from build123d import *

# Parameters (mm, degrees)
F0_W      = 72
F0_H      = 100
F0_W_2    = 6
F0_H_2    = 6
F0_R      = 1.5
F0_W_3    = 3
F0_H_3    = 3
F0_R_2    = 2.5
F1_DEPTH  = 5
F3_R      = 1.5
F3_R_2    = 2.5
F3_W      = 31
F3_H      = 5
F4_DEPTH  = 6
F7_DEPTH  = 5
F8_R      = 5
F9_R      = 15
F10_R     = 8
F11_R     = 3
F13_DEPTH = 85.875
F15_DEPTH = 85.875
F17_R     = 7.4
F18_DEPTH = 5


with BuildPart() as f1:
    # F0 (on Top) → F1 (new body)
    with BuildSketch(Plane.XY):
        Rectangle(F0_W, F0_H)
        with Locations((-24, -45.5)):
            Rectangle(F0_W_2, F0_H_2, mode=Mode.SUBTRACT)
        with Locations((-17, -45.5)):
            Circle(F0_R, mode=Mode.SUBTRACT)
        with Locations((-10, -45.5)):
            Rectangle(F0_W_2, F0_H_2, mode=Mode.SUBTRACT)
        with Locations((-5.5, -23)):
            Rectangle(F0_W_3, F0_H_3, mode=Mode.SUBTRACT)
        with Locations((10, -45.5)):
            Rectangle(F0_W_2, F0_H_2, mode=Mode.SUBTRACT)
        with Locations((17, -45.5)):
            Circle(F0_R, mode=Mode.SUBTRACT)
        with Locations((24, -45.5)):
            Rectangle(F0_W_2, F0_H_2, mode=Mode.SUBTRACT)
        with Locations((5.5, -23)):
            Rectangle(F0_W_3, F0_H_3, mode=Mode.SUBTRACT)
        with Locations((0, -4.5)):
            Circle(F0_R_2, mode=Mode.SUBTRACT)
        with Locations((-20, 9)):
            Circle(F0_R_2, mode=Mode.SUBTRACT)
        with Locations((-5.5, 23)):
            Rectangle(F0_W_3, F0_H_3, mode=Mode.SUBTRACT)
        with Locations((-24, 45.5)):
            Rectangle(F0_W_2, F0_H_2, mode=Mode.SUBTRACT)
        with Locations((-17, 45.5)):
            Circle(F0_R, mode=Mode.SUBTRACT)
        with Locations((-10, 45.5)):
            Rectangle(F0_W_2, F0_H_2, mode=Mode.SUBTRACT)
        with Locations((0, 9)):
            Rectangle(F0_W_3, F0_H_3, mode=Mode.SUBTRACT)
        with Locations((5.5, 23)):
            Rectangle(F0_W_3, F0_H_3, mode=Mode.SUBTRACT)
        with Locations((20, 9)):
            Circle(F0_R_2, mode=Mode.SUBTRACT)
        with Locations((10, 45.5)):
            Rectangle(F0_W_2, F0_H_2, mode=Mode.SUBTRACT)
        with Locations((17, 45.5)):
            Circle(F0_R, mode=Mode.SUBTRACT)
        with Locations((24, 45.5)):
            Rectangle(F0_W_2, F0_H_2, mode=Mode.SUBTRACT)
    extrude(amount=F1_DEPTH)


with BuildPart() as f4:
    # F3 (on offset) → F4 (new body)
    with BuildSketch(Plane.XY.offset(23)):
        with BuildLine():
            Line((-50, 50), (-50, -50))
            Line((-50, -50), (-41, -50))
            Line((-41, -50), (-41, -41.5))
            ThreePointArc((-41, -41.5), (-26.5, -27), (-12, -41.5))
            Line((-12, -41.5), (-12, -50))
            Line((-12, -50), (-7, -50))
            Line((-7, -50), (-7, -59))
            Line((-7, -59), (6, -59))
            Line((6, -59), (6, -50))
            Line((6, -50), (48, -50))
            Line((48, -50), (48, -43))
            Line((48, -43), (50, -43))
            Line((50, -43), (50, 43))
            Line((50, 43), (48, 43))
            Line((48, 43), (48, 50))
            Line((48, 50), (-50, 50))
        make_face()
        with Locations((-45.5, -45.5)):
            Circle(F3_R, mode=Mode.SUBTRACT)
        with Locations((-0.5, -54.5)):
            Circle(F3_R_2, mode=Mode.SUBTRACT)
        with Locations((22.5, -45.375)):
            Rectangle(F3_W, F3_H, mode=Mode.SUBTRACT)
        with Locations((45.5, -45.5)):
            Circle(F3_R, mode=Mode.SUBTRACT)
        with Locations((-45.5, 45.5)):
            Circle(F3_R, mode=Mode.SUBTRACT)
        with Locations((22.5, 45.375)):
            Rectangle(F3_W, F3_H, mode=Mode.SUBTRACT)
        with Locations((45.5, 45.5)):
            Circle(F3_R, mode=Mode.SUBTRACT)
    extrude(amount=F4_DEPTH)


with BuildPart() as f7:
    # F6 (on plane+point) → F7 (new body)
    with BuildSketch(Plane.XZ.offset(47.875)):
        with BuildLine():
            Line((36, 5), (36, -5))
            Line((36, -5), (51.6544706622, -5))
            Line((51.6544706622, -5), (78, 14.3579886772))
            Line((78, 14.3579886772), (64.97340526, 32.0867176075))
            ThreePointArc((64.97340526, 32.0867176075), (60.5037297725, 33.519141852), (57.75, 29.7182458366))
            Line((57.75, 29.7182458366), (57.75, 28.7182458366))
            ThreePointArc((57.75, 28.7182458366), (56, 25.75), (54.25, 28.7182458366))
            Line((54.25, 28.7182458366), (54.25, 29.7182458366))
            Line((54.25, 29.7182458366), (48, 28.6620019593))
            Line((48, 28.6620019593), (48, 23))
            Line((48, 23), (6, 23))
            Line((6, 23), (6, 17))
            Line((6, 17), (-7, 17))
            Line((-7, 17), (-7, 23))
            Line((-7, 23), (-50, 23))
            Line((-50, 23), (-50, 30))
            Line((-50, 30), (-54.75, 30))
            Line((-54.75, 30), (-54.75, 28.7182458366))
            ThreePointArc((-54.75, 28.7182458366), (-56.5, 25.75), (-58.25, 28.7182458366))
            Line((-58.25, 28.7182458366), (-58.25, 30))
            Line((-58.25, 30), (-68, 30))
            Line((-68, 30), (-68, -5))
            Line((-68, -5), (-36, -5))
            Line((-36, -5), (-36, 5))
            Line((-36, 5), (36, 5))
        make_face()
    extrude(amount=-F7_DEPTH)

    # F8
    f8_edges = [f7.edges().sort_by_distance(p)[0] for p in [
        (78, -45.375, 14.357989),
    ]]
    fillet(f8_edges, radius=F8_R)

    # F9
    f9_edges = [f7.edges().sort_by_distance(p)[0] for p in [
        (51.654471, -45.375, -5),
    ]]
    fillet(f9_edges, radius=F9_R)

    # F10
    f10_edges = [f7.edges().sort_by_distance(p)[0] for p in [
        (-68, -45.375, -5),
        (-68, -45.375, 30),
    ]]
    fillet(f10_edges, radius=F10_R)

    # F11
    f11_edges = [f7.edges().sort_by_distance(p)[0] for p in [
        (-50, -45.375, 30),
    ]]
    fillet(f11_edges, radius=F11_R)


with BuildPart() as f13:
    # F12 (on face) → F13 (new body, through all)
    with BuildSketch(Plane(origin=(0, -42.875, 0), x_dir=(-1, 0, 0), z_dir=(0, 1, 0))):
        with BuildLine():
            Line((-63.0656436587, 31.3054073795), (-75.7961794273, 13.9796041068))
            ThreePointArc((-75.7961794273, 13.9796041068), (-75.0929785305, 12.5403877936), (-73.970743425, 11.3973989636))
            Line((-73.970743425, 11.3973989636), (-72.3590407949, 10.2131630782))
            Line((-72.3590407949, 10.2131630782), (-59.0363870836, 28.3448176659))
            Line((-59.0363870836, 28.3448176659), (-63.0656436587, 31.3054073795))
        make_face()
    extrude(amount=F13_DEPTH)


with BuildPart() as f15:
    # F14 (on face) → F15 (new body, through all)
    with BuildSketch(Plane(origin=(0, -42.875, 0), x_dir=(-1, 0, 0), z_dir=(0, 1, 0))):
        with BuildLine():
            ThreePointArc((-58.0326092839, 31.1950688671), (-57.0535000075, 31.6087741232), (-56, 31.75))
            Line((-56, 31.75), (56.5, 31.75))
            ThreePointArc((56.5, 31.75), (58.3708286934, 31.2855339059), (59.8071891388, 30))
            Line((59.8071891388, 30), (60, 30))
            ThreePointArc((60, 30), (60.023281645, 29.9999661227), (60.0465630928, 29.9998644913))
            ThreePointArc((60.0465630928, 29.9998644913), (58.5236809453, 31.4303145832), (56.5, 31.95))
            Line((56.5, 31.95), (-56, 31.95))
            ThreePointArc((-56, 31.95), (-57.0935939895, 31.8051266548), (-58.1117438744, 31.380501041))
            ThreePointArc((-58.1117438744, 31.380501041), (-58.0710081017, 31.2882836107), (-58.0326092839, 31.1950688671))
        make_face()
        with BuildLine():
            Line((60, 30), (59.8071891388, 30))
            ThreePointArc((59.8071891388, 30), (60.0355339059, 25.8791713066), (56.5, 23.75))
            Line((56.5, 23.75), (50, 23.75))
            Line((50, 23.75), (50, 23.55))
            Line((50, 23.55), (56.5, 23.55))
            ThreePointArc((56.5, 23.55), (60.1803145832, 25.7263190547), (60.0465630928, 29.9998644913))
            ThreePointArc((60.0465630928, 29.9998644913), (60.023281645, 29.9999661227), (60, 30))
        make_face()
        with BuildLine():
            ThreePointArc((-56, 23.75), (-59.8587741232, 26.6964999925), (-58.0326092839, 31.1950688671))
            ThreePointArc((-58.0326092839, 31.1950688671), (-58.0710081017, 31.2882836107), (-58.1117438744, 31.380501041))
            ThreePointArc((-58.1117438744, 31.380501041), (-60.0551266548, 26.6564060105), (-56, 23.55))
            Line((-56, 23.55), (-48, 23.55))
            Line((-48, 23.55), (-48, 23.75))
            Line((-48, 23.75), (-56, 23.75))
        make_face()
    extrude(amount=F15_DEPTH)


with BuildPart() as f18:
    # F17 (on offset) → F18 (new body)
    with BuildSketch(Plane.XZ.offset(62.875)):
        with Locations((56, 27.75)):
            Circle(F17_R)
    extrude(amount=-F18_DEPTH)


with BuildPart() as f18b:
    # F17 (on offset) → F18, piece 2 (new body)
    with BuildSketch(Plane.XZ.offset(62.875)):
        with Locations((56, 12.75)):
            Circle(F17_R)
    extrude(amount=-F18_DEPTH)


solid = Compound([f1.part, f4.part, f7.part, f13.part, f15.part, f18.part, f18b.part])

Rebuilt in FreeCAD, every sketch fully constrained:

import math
import FreeCAD as App
import Part
import Sketcher
Q = App.Units.Quantity


def edges_at(feature, points):
    """Names of the edges that pass closest to the given points."""
    edges = feature.Shape.Edges
    near = lambda p: min(range(len(edges)), key=lambda i: edges[i].distToShape(Part.Vertex(*p))[0])
    return sorted({f"Edge{near(p) + 1}" for p in points})

doc = App.newDocument("Part")
body = doc.addObject("PartDesign::Body", "Body")

sketch1 = body.newObject("Sketcher::SketchObject", "Sketch")
sketch1.AttachmentSupport = (doc.getObject("XY_Plane"), [""])
sketch1.MapMode = "FlatFace"
sketch1.addGeometry([
    Part.LineSegment(App.Vector(-36, 50, 0), App.Vector(-36, -50, 0)),
    Part.LineSegment(App.Vector(-36, -50, 0), App.Vector(36, -50, 0)),
    Part.LineSegment(App.Vector(36, -50, 0), App.Vector(36, 50, 0)),
    Part.LineSegment(App.Vector(36, 50, 0), App.Vector(-36, 50, 0)),
    Part.LineSegment(App.Vector(-21, -48.5, 0), App.Vector(-27, -48.5, 0)),
    Part.LineSegment(App.Vector(-27, -48.5, 0), App.Vector(-27, -42.5, 0)),
    Part.LineSegment(App.Vector(-27, -42.5, 0), App.Vector(-21, -42.5, 0)),
    Part.LineSegment(App.Vector(-21, -42.5, 0), App.Vector(-21, -48.5, 0)),
    Part.Circle(App.Vector(-17, -45.5, 0), App.Vector(0, 0, 1), 1.5),
    Part.LineSegment(App.Vector(-7, -48.5, 0), App.Vector(-13, -48.5, 0)),
    Part.LineSegment(App.Vector(-13, -48.5, 0), App.Vector(-13, -42.5, 0)),
    Part.LineSegment(App.Vector(-13, -42.5, 0), App.Vector(-7, -42.5, 0)),
    Part.LineSegment(App.Vector(-7, -42.5, 0), App.Vector(-7, -48.5, 0)),
    Part.LineSegment(App.Vector(-4, -24.5, 0), App.Vector(-7, -24.5, 0)),
    Part.LineSegment(App.Vector(-7, -24.5, 0), App.Vector(-7, -21.5, 0)),
    Part.LineSegment(App.Vector(-7, -21.5, 0), App.Vector(-4, -21.5, 0)),
    Part.LineSegment(App.Vector(-4, -21.5, 0), App.Vector(-4, -24.5, 0)),
    Part.LineSegment(App.Vector(13, -48.5, 0), App.Vector(7, -48.5, 0)),
    Part.LineSegment(App.Vector(7, -48.5, 0), App.Vector(7, -42.5, 0)),
    Part.LineSegment(App.Vector(7, -42.5, 0), App.Vector(13, -42.5, 0)),
    Part.LineSegment(App.Vector(13, -42.5, 0), App.Vector(13, -48.5, 0)),
    Part.Circle(App.Vector(17, -45.5, 0), App.Vector(0, 0, 1), 1.5),
    Part.LineSegment(App.Vector(27, -48.5, 0), App.Vector(21, -48.5, 0)),
    Part.LineSegment(App.Vector(21, -48.5, 0), App.Vector(21, -42.5, 0)),
    Part.LineSegment(App.Vector(21, -42.5, 0), App.Vector(27, -42.5, 0)),
    Part.LineSegment(App.Vector(27, -42.5, 0), App.Vector(27, -48.5, 0)),
    Part.LineSegment(App.Vector(7, -24.5, 0), App.Vector(4, -24.5, 0)),
    Part.LineSegment(App.Vector(4, -24.5, 0), App.Vector(4, -21.5, 0)),
    Part.LineSegment(App.Vector(4, -21.5, 0), App.Vector(7, -21.5, 0)),
    Part.LineSegment(App.Vector(7, -21.5, 0), App.Vector(7, -24.5, 0)),
    Part.Circle(App.Vector(0, -4.5, 0), App.Vector(0, 0, 1), 2.5),
    Part.Circle(App.Vector(-20, 9, 0), App.Vector(0, 0, 1), 2.5),
    Part.LineSegment(App.Vector(-4, 21.5, 0), App.Vector(-7, 21.5, 0)),
    Part.LineSegment(App.Vector(-7, 21.5, 0), App.Vector(-7, 24.5, 0)),
    Part.LineSegment(App.Vector(-7, 24.5, 0), App.Vector(-4, 24.5, 0)),
    Part.LineSegment(App.Vector(-4, 24.5, 0), App.Vector(-4, 21.5, 0)),
    Part.LineSegment(App.Vector(-21, 42.5, 0), App.Vector(-27, 42.5, 0)),
    Part.LineSegment(App.Vector(-27, 42.5, 0), App.Vector(-27, 48.5, 0)),
    Part.LineSegment(App.Vector(-27, 48.5, 0), App.Vector(-21, 48.5, 0)),
    Part.LineSegment(App.Vector(-21, 48.5, 0), App.Vector(-21, 42.5, 0)),
    Part.Circle(App.Vector(-17, 45.5, 0), App.Vector(0, 0, 1), 1.5),
    Part.LineSegment(App.Vector(-7, 42.5, 0), App.Vector(-13, 42.5, 0)),
    Part.LineSegment(App.Vector(-13, 42.5, 0), App.Vector(-13, 48.5, 0)),
    Part.LineSegment(App.Vector(-13, 48.5, 0), App.Vector(-7, 48.5, 0)),
    Part.LineSegment(App.Vector(-7, 48.5, 0), App.Vector(-7, 42.5, 0)),
    Part.LineSegment(App.Vector(1.5, 7.5, 0), App.Vector(-1.5, 7.5, 0)),
    Part.LineSegment(App.Vector(-1.5, 7.5, 0), App.Vector(-1.5, 10.5, 0)),
    Part.LineSegment(App.Vector(-1.5, 10.5, 0), App.Vector(1.5, 10.5, 0)),
    Part.LineSegment(App.Vector(1.5, 10.5, 0), App.Vector(1.5, 7.5, 0)),
    Part.LineSegment(App.Vector(7, 21.5, 0), App.Vector(4, 21.5, 0)),
    Part.LineSegment(App.Vector(4, 21.5, 0), App.Vector(4, 24.5, 0)),
    Part.LineSegment(App.Vector(4, 24.5, 0), App.Vector(7, 24.5, 0)),
    Part.LineSegment(App.Vector(7, 24.5, 0), App.Vector(7, 21.5, 0)),
    Part.Circle(App.Vector(20, 9, 0), App.Vector(0, 0, 1), 2.5),
    Part.LineSegment(App.Vector(13, 42.5, 0), App.Vector(7, 42.5, 0)),
    Part.LineSegment(App.Vector(7, 42.5, 0), App.Vector(7, 48.5, 0)),
    Part.LineSegment(App.Vector(7, 48.5, 0), App.Vector(13, 48.5, 0)),
    Part.LineSegment(App.Vector(13, 48.5, 0), App.Vector(13, 42.5, 0)),
    Part.Circle(App.Vector(17, 45.5, 0), App.Vector(0, 0, 1), 1.5),
    Part.LineSegment(App.Vector(27, 42.5, 0), App.Vector(21, 42.5, 0)),
    Part.LineSegment(App.Vector(21, 42.5, 0), App.Vector(21, 48.5, 0)),
    Part.LineSegment(App.Vector(21, 48.5, 0), App.Vector(27, 48.5, 0)),
    Part.LineSegment(App.Vector(27, 48.5, 0), App.Vector(27, 42.5, 0)),
], False)
sketch1.addConstraint([
    Sketcher.Constraint("Coincident", 0, 2, 1, 1),
    Sketcher.Constraint("Coincident", 1, 2, 2, 1),
    Sketcher.Constraint("Coincident", 2, 2, 3, 1),
    Sketcher.Constraint("Coincident", 3, 2, 0, 1),
    Sketcher.Constraint("Coincident", 4, 2, 5, 1),
    Sketcher.Constraint("Coincident", 5, 2, 6, 1),
    Sketcher.Constraint("Coincident", 6, 2, 7, 1),
    Sketcher.Constraint("Coincident", 7, 2, 4, 1),
    Sketcher.Constraint("Coincident", 9, 2, 10, 1),
    Sketcher.Constraint("Coincident", 10, 2, 11, 1),
    Sketcher.Constraint("Coincident", 11, 2, 12, 1),
    Sketcher.Constraint("Coincident", 12, 2, 9, 1),
    Sketcher.Constraint("Coincident", 13, 2, 14, 1),
    Sketcher.Constraint("Coincident", 14, 2, 15, 1),
    Sketcher.Constraint("Coincident", 15, 2, 16, 1),
    Sketcher.Constraint("Coincident", 16, 2, 13, 1),
    Sketcher.Constraint("Coincident", 17, 2, 18, 1),
    Sketcher.Constraint("Coincident", 18, 2, 19, 1),
    Sketcher.Constraint("Coincident", 19, 2, 20, 1),
    Sketcher.Constraint("Coincident", 20, 2, 17, 1),
    Sketcher.Constraint("Coincident", 22, 2, 23, 1),
    Sketcher.Constraint("Coincident", 23, 2, 24, 1),
    Sketcher.Constraint("Coincident", 24, 2, 25, 1),
    Sketcher.Constraint("Coincident", 25, 2, 22, 1),
    Sketcher.Constraint("Coincident", 26, 2, 27, 1),
    Sketcher.Constraint("Coincident", 27, 2, 28, 1),
    Sketcher.Constraint("Coincident", 28, 2, 29, 1),
    Sketcher.Constraint("Coincident", 29, 2, 26, 1),
    Sketcher.Constraint("Coincident", 32, 2, 33, 1),
    Sketcher.Constraint("Coincident", 33, 2, 34, 1),
    Sketcher.Constraint("Coincident", 34, 2, 35, 1),
    Sketcher.Constraint("Coincident", 35, 2, 32, 1),
    Sketcher.Constraint("Coincident", 36, 2, 37, 1),
    Sketcher.Constraint("Coincident", 37, 2, 38, 1),
    Sketcher.Constraint("Coincident", 38, 2, 39, 1),
    Sketcher.Constraint("Coincident", 39, 2, 36, 1),
    Sketcher.Constraint("Coincident", 41, 2, 42, 1),
    Sketcher.Constraint("Coincident", 42, 2, 43, 1),
    Sketcher.Constraint("Coincident", 43, 2, 44, 1),
    Sketcher.Constraint("Coincident", 44, 2, 41, 1),
    Sketcher.Constraint("Coincident", 45, 2, 46, 1),
    Sketcher.Constraint("Coincident", 46, 2, 47, 1),
    Sketcher.Constraint("Coincident", 47, 2, 48, 1),
    Sketcher.Constraint("Coincident", 48, 2, 45, 1),
    Sketcher.Constraint("Coincident", 49, 2, 50, 1),
    Sketcher.Constraint("Coincident", 50, 2, 51, 1),
    Sketcher.Constraint("Coincident", 51, 2, 52, 1),
    Sketcher.Constraint("Coincident", 52, 2, 49, 1),
    Sketcher.Constraint("Coincident", 54, 2, 55, 1),
    Sketcher.Constraint("Coincident", 55, 2, 56, 1),
    Sketcher.Constraint("Coincident", 56, 2, 57, 1),
    Sketcher.Constraint("Coincident", 57, 2, 54, 1),
    Sketcher.Constraint("Coincident", 59, 2, 60, 1),
    Sketcher.Constraint("Coincident", 60, 2, 61, 1),
    Sketcher.Constraint("Coincident", 61, 2, 62, 1),
    Sketcher.Constraint("Coincident", 62, 2, 59, 1),
    Sketcher.Constraint("Vertical", 0),
    Sketcher.Constraint("Horizontal", 1),
    Sketcher.Constraint("Vertical", 2),
    Sketcher.Constraint("Horizontal", 3),
    Sketcher.Constraint("Horizontal", 4),
    Sketcher.Constraint("Vertical", 5),
    Sketcher.Constraint("Horizontal", 6),
    Sketcher.Constraint("Vertical", 7),
    Sketcher.Constraint("Horizontal", 9),
    Sketcher.Constraint("Vertical", 10),
    Sketcher.Constraint("Horizontal", 11),
    Sketcher.Constraint("Vertical", 12),
    Sketcher.Constraint("Horizontal", 13),
    Sketcher.Constraint("Vertical", 14),
    Sketcher.Constraint("Horizontal", 15),
    Sketcher.Constraint("Vertical", 16),
    Sketcher.Constraint("Horizontal", 17),
    Sketcher.Constraint("Vertical", 18),
    Sketcher.Constraint("Horizontal", 19),
    Sketcher.Constraint("Vertical", 20),
    Sketcher.Constraint("Horizontal", 22),
    Sketcher.Constraint("Vertical", 23),
    Sketcher.Constraint("Horizontal", 24),
    Sketcher.Constraint("Vertical", 25),
    Sketcher.Constraint("Horizontal", 26),
    Sketcher.Constraint("Vertical", 27),
    Sketcher.Constraint("Horizontal", 28),
    Sketcher.Constraint("Vertical", 29),
    Sketcher.Constraint("Horizontal", 32),
    Sketcher.Constraint("Vertical", 33),
    Sketcher.Constraint("Horizontal", 34),
    Sketcher.Constraint("Vertical", 35),
    Sketcher.Constraint("Horizontal", 36),
    Sketcher.Constraint("Vertical", 37),
    Sketcher.Constraint("Horizontal", 38),
    Sketcher.Constraint("Vertical", 39),
    Sketcher.Constraint("Horizontal", 41),
    Sketcher.Constraint("Vertical", 42),
    Sketcher.Constraint("Horizontal", 43),
    Sketcher.Constraint("Vertical", 44),
    Sketcher.Constraint("Horizontal", 45),
    Sketcher.Constraint("Vertical", 46),
    Sketcher.Constraint("Horizontal", 47),
    Sketcher.Constraint("Vertical", 48),
    Sketcher.Constraint("Horizontal", 49),
    Sketcher.Constraint("Vertical", 50),
    Sketcher.Constraint("Horizontal", 51),
    Sketcher.Constraint("Vertical", 52),
    Sketcher.Constraint("Horizontal", 54),
    Sketcher.Constraint("Vertical", 55),
    Sketcher.Constraint("Horizontal", 56),
    Sketcher.Constraint("Vertical", 57),
    Sketcher.Constraint("Horizontal", 59),
    Sketcher.Constraint("Vertical", 60),
    Sketcher.Constraint("Horizontal", 61),
    Sketcher.Constraint("Vertical", 62),
    Sketcher.Constraint("Equal", 8, 21),
    Sketcher.Constraint("Equal", 30, 31),
    Sketcher.Constraint("Equal", 21, 40),
    Sketcher.Constraint("Equal", 31, 53),
    Sketcher.Constraint("Equal", 40, 58),
    Sketcher.Constraint("Symmetric", 21, 3, 40, 3, -1, 1),
    Sketcher.Constraint("Symmetric", 8, 3, 58, 3, -1, 1),
    Sketcher.Constraint("Symmetric", 0, 2, 2, 2, -1, 1),
    Sketcher.Constraint("Symmetric", 28, 2, 32, 2, -1, 1),
    Sketcher.Constraint("Symmetric", 26, 2, 34, 2, -1, 1),
    Sketcher.Constraint("Symmetric", 24, 2, 36, 2, -1, 1),
    Sketcher.Constraint("Symmetric", 22, 2, 38, 2, -1, 1),
    Sketcher.Constraint("Symmetric", 19, 2, 41, 2, -1, 1),
    Sketcher.Constraint("Symmetric", 17, 2, 43, 2, -1, 1),
    Sketcher.Constraint("Symmetric", 15, 2, 49, 2, -1, 1),
    Sketcher.Constraint("Symmetric", 13, 2, 51, 2, -1, 1),
    Sketcher.Constraint("Symmetric", 11, 2, 54, 2, -1, 1),
    Sketcher.Constraint("Symmetric", 9, 2, 56, 2, -1, 1),
    Sketcher.Constraint("Symmetric", 6, 2, 59, 2, -1, 1),
    Sketcher.Constraint("Symmetric", 4, 2, 61, 2, -1, 1),
    Sketcher.Constraint("Symmetric", 8, 3, 21, 3, -2),
    Sketcher.Constraint("Symmetric", 31, 3, 53, 3, -2),
    Sketcher.Constraint("Symmetric", 12, 2, 17, 2, -2),
    Sketcher.Constraint("Symmetric", 10, 2, 19, 2, -2),
    Sketcher.Constraint("Symmetric", 7, 2, 22, 2, -2),
    Sketcher.Constraint("Symmetric", 5, 2, 24, 2, -2),
    Sketcher.Constraint("Symmetric", 16, 2, 26, 2, -2),
    Sketcher.Constraint("Symmetric", 14, 2, 28, 2, -2),
    Sketcher.Constraint("PointOnObject", 30, 3, -2),
    Sketcher.Constraint("Horizontal", 7, 2, 9, 2),
    Sketcher.Constraint("Horizontal", 6, 2, 10, 2),
    Sketcher.Constraint("Vertical", 12, 2, 13, 2),
    Sketcher.Constraint("Equal", 6, 9),
    Sketcher.Constraint("Equal", 34, 45),
    Sketcher.Constraint("Equal", 61, 5),
    Sketcher.Constraint("Equal", 51, 14),
    Sketcher.Constraint("Equal", 35, 46),
    Sketcher.Constraint("Diameter", 8, Q("3 mm")),
    Sketcher.Constraint("Diameter", 30, Q("5 mm")),
    Sketcher.Constraint("DistanceX", 1, 1, 1, 2, Q("72 mm")),
    Sketcher.Constraint("DistanceX", 4, 2, 4, 1, Q("6 mm")),
    Sketcher.Constraint("DistanceX", 13, 2, 13, 1, Q("3 mm")),
    Sketcher.Constraint("DistanceY", 0, 2, 0, 1, Q("100 mm")),
    Sketcher.Constraint("DistanceX", 8, 3, -1, 1, Q("17 mm")),
    Sketcher.Constraint("DistanceX", 31, 3, -1, 1, Q("20 mm")),
    Sketcher.Constraint("DistanceY", -1, 1, 31, 3, Q("9 mm")),
    Sketcher.Constraint("DistanceX", 4, 2, -1, 1, Q("27 mm")),
    Sketcher.Constraint("DistanceX", 9, 2, -1, 1, Q("13 mm")),
    Sketcher.Constraint("DistanceY", 8, 3, -1, 1, Q("45.5 mm")),
    Sketcher.Constraint("DistanceY", 30, 3, -1, 1, Q("4.5 mm")),
    Sketcher.Constraint("DistanceY", 4, 2, -1, 1, Q("48.5 mm")),
    Sketcher.Constraint("DistanceY", 13, 2, -1, 1, Q("24.5 mm")),
    Sketcher.Constraint("DistanceX", 45, 2, -1, 1, Q("1.5 mm")),
    Sketcher.Constraint("DistanceY", -1, 1, 45, 2, Q("7.5 mm")),
])
pad1 = body.newObject("PartDesign::Pad", "Pad")
pad1.Profile = sketch1
pad1.Length = 5
body2 = doc.addObject("PartDesign::Body", "Body001")

sketch2 = body2.newObject("Sketcher::SketchObject", "Sketch001")
sketch2.AttachmentSupport = (doc.getObject("XY_Plane001"), [""])
sketch2.MapMode = "FlatFace"
sketch2.AttachmentOffset = App.Placement(App.Vector(0, 0, 23), App.Rotation())
sketch2.addGeometry([
    Part.LineSegment(App.Vector(-50, 50, 0), App.Vector(-50, -50, 0)),
    Part.LineSegment(App.Vector(-50, -50, 0), App.Vector(-41, -50, 0)),
    Part.LineSegment(App.Vector(-41, -50, 0), App.Vector(-41, -41.5, 0)),
    Part.ArcOfCircle(Part.Circle(App.Vector(-26.5, -41.5, 0), App.Vector(0, 0, 1), 14.5), math.radians(0), math.radians(180)),
    Part.LineSegment(App.Vector(-12, -41.5, 0), App.Vector(-12, -50, 0)),
    Part.LineSegment(App.Vector(-12, -50, 0), App.Vector(-7, -50, 0)),
    Part.LineSegment(App.Vector(-7, -50, 0), App.Vector(-7, -59, 0)),
    Part.LineSegment(App.Vector(-7, -59, 0), App.Vector(6, -59, 0)),
    Part.LineSegment(App.Vector(6, -59, 0), App.Vector(6, -50, 0)),
    Part.LineSegment(App.Vector(6, -50, 0), App.Vector(48, -50, 0)),
    Part.LineSegment(App.Vector(48, -50, 0), App.Vector(48, -43, 0)),
    Part.LineSegment(App.Vector(48, -43, 0), App.Vector(50, -43, 0)),
    Part.LineSegment(App.Vector(50, -43, 0), App.Vector(50, 43, 0)),
    Part.LineSegment(App.Vector(50, 43, 0), App.Vector(48, 43, 0)),
    Part.LineSegment(App.Vector(48, 43, 0), App.Vector(48, 50, 0)),
    Part.LineSegment(App.Vector(48, 50, 0), App.Vector(-50, 50, 0)),
    Part.Circle(App.Vector(-45.5, -45.5, 0), App.Vector(0, 0, 1), 1.5),
    Part.Circle(App.Vector(-0.5, -54.5, 0), App.Vector(0, 0, 1), 2.5),
    Part.LineSegment(App.Vector(38, -47.9, 0), App.Vector(7, -47.9, 0)),
    Part.LineSegment(App.Vector(7, -47.9, 0), App.Vector(7, -42.9, 0)),
    Part.LineSegment(App.Vector(7, -42.9, 0), App.Vector(38, -42.9, 0)),
    Part.LineSegment(App.Vector(38, -42.9, 0), App.Vector(38, -47.9, 0)),
    Part.Circle(App.Vector(45.5, -45.5, 0), App.Vector(0, 0, 1), 1.5),
    Part.Circle(App.Vector(-45.5, 45.5, 0), App.Vector(0, 0, 1), 1.5),
    Part.LineSegment(App.Vector(38, 42.9, 0), App.Vector(7, 42.9, 0)),
    Part.LineSegment(App.Vector(7, 42.9, 0), App.Vector(7, 47.9, 0)),
    Part.LineSegment(App.Vector(7, 47.9, 0), App.Vector(38, 47.9, 0)),
    Part.LineSegment(App.Vector(38, 47.9, 0), App.Vector(38, 42.9, 0)),
    Part.Circle(App.Vector(45.5, 45.5, 0), App.Vector(0, 0, 1), 1.5),
], False)
sketch2.addConstraint([
    Sketcher.Constraint("Coincident", 0, 2, 1, 1),
    Sketcher.Constraint("Coincident", 1, 2, 2, 1),
    Sketcher.Constraint("Tangent", 2, 2, 3, 2),
    Sketcher.Constraint("Tangent", 3, 1, 4, 1),
    Sketcher.Constraint("Coincident", 4, 2, 5, 1),
    Sketcher.Constraint("Coincident", 5, 2, 6, 1),
    Sketcher.Constraint("Coincident", 6, 2, 7, 1),
    Sketcher.Constraint("Coincident", 7, 2, 8, 1),
    Sketcher.Constraint("Coincident", 8, 2, 9, 1),
    Sketcher.Constraint("Coincident", 9, 2, 10, 1),
    Sketcher.Constraint("Coincident", 10, 2, 11, 1),
    Sketcher.Constraint("Coincident", 11, 2, 12, 1),
    Sketcher.Constraint("Coincident", 12, 2, 13, 1),
    Sketcher.Constraint("Coincident", 13, 2, 14, 1),
    Sketcher.Constraint("Coincident", 14, 2, 15, 1),
    Sketcher.Constraint("Coincident", 15, 2, 0, 1),
    Sketcher.Constraint("Coincident", 18, 2, 19, 1),
    Sketcher.Constraint("Coincident", 19, 2, 20, 1),
    Sketcher.Constraint("Coincident", 20, 2, 21, 1),
    Sketcher.Constraint("Coincident", 21, 2, 18, 1),
    Sketcher.Constraint("Coincident", 24, 2, 25, 1),
    Sketcher.Constraint("Coincident", 25, 2, 26, 1),
    Sketcher.Constraint("Coincident", 26, 2, 27, 1),
    Sketcher.Constraint("Coincident", 27, 2, 24, 1),
    Sketcher.Constraint("Vertical", 0),
    Sketcher.Constraint("Horizontal", 1),
    Sketcher.Constraint("Vertical", 2),
    Sketcher.Constraint("Vertical", 4),
    Sketcher.Constraint("Horizontal", 5),
    Sketcher.Constraint("Vertical", 6),
    Sketcher.Constraint("Horizontal", 7),
    Sketcher.Constraint("Vertical", 8),
    Sketcher.Constraint("Horizontal", 9),
    Sketcher.Constraint("Vertical", 10),
    Sketcher.Constraint("Horizontal", 11),
    Sketcher.Constraint("Vertical", 12),
    Sketcher.Constraint("Horizontal", 13),
    Sketcher.Constraint("Vertical", 14),
    Sketcher.Constraint("Horizontal", 15),
    Sketcher.Constraint("Horizontal", 18),
    Sketcher.Constraint("Vertical", 19),
    Sketcher.Constraint("Horizontal", 20),
    Sketcher.Constraint("Vertical", 21),
    Sketcher.Constraint("Horizontal", 24),
    Sketcher.Constraint("Vertical", 25),
    Sketcher.Constraint("Horizontal", 26),
    Sketcher.Constraint("Vertical", 27),
    Sketcher.Constraint("Equal", 16, 22),
    Sketcher.Constraint("Equal", 22, 23),
    Sketcher.Constraint("Equal", 23, 28),
    Sketcher.Constraint("Symmetric", 22, 3, 23, 3, -1, 1),
    Sketcher.Constraint("Symmetric", 16, 3, 28, 3, -1, 1),
    Sketcher.Constraint("Symmetric", 16, 3, 22, 3, -2),
    Sketcher.Constraint("Symmetric", 10, 2, 13, 2, -1),
    Sketcher.Constraint("Symmetric", 19, 2, 24, 2, -1),
    Sketcher.Constraint("Symmetric", 21, 2, 26, 2, -1),
    Sketcher.Constraint("Horizontal", 1, 2, 4, 2),
    Sketcher.Constraint("Horizontal", 5, 2, 8, 2),
    Sketcher.Constraint("Equal", 1, 6),
    Sketcher.Constraint("Equal", 10, 14),
    Sketcher.Constraint("Equal", 5, 19),
    Sketcher.Constraint("Diameter", 16, Q("3 mm")),
    Sketcher.Constraint("Diameter", 17, Q("5 mm")),
    Sketcher.Constraint("Radius", 3, Q("14.5 mm")),
    Sketcher.Constraint("DistanceX", 1, 1, 1, 2, Q("9 mm")),
    Sketcher.Constraint("DistanceX", 5, 1, 5, 2, Q("5 mm")),
    Sketcher.Constraint("DistanceX", 7, 1, 7, 2, Q("13 mm")),
    Sketcher.Constraint("DistanceX", 9, 1, 9, 2, Q("42 mm")),
    Sketcher.Constraint("DistanceX", 11, 1, 11, 2, Q("2 mm")),
    Sketcher.Constraint("DistanceX", 18, 2, 18, 1, Q("31 mm")),
    Sketcher.Constraint("DistanceY", 0, 2, 0, 1, Q("100 mm")),
    Sketcher.Constraint("DistanceY", 10, 1, 10, 2, Q("7 mm")),
    Sketcher.Constraint("DistanceY", 2, 1, 2, 2, Q("8.5 mm")),
    Sketcher.Constraint("DistanceX", 0, 2, -1, 1, Q("50 mm")),
    Sketcher.Constraint("DistanceX", -1, 1, 18, 2, Q("7 mm")),
    Sketcher.Constraint("DistanceX", 16, 3, 3, 3, Q("19 mm")),
    Sketcher.Constraint("DistanceY", 16, 3, 3, 3, Q("4 mm")),
    Sketcher.Constraint("DistanceX", 3, 3, 17, 3, Q("26 mm")),
    Sketcher.Constraint("DistanceY", 17, 3, 3, 3, Q("13 mm")),
    Sketcher.Constraint("DistanceY", 18, 2, -1, 1, Q("47.875 mm")),
])
pad2 = body2.newObject("PartDesign::Pad", "Pad001")
pad2.Profile = sketch2
pad2.Length = 6
body3 = doc.addObject("PartDesign::Body", "Body002")

sketch3 = body3.newObject("Sketcher::SketchObject", "Sketch002")
sketch3.AttachmentSupport = (doc.getObject("XZ_Plane002"), [""])
sketch3.MapMode = "FlatFace"
sketch3.AttachmentOffset = App.Placement(App.Vector(0, 0, 47.875), App.Rotation())
sketch3.addGeometry([
    Part.LineSegment(App.Vector(36, 5, 0), App.Vector(36, -5, 0)),
    Part.LineSegment(App.Vector(36, -5, 0), App.Vector(51.7, -5, 0)),
    Part.LineSegment(App.Vector(51.7, -5, 0), App.Vector(78, 14.4, 0)),
    Part.LineSegment(App.Vector(78, 14.4, 0), App.Vector(65, 32.1, 0)),
    Part.ArcOfCircle(Part.Circle(App.Vector(61.8, 29.7, 0), App.Vector(0, 0, 1), 4), math.radians(36), math.radians(180)),
    Part.LineSegment(App.Vector(57.8, 29.7, 0), App.Vector(57.8, 28.7, 0)),
    Part.ArcOfCircle(Part.Circle(App.Vector(56, 27.8, 0), App.Vector(0, 0, 1), 2), math.radians(151), math.radians(389)),
    Part.LineSegment(App.Vector(54.2, 28.7, 0), App.Vector(54.2, 29.7, 0)),
    Part.LineSegment(App.Vector(54.2, 29.7, 0), App.Vector(48, 28.7, 0)),
    Part.LineSegment(App.Vector(48, 28.7, 0), App.Vector(48, 23, 0)),
    Part.LineSegment(App.Vector(48, 23, 0), App.Vector(6, 23, 0)),
    Part.LineSegment(App.Vector(6, 23, 0), App.Vector(6, 17, 0)),
    Part.LineSegment(App.Vector(6, 17, 0), App.Vector(-7, 17, 0)),
    Part.LineSegment(App.Vector(-7, 17, 0), App.Vector(-7, 23, 0)),
    Part.LineSegment(App.Vector(-7, 23, 0), App.Vector(-50, 23, 0)),
    Part.LineSegment(App.Vector(-50, 23, 0), App.Vector(-50, 30, 0)),
    Part.LineSegment(App.Vector(-50, 30, 0), App.Vector(-54.8, 30, 0)),
    Part.LineSegment(App.Vector(-54.8, 30, 0), App.Vector(-54.8, 28.7, 0)),
    Part.ArcOfCircle(Part.Circle(App.Vector(-56.5, 27.8, 0), App.Vector(0, 0, 1), 2), math.radians(151), math.radians(389)),
    Part.LineSegment(App.Vector(-58.2, 28.7, 0), App.Vector(-58.2, 30, 0)),
    Part.LineSegment(App.Vector(-58.2, 30, 0), App.Vector(-68, 30, 0)),
    Part.LineSegment(App.Vector(-68, 30, 0), App.Vector(-68, -5, 0)),
    Part.LineSegment(App.Vector(-68, -5, 0), App.Vector(-36, -5, 0)),
    Part.LineSegment(App.Vector(-36, -5, 0), App.Vector(-36, 5, 0)),
    Part.LineSegment(App.Vector(-36, 5, 0), App.Vector(36, 5, 0)),
], False)
sketch3.addConstraint([
    Sketcher.Constraint("Coincident", 0, 2, 1, 1),
    Sketcher.Constraint("Coincident", 1, 2, 2, 1),
    Sketcher.Constraint("Coincident", 2, 2, 3, 1),
    Sketcher.Constraint("Tangent", 3, 2, 4, 1),
    Sketcher.Constraint("Tangent", 4, 2, 5, 1),
    Sketcher.Constraint("Coincident", 5, 2, 6, 2),
    Sketcher.Constraint("Coincident", 6, 1, 7, 1),
    Sketcher.Constraint("Coincident", 7, 2, 8, 1),
    Sketcher.Constraint("Coincident", 8, 2, 9, 1),
    Sketcher.Constraint("Coincident", 9, 2, 10, 1),
    Sketcher.Constraint("Coincident", 10, 2, 11, 1),
    Sketcher.Constraint("Coincident", 11, 2, 12, 1),
    Sketcher.Constraint("Coincident", 12, 2, 13, 1),
    Sketcher.Constraint("Coincident", 13, 2, 14, 1),
    Sketcher.Constraint("Coincident", 14, 2, 15, 1),
    Sketcher.Constraint("Coincident", 15, 2, 16, 1),
    Sketcher.Constraint("Coincident", 16, 2, 17, 1),
    Sketcher.Constraint("Coincident", 17, 2, 18, 2),
    Sketcher.Constraint("Coincident", 18, 1, 19, 1),
    Sketcher.Constraint("Coincident", 19, 2, 20, 1),
    Sketcher.Constraint("Coincident", 20, 2, 21, 1),
    Sketcher.Constraint("Coincident", 21, 2, 22, 1),
    Sketcher.Constraint("Coincident", 22, 2, 23, 1),
    Sketcher.Constraint("Coincident", 23, 2, 24, 1),
    Sketcher.Constraint("Coincident", 24, 2, 0, 1),
    Sketcher.Constraint("Vertical", 0),
    Sketcher.Constraint("Horizontal", 1),
    Sketcher.Constraint("Vertical", 5),
    Sketcher.Constraint("Vertical", 7),
    Sketcher.Constraint("Vertical", 9),
    Sketcher.Constraint("Horizontal", 10),
    Sketcher.Constraint("Vertical", 11),
    Sketcher.Constraint("Horizontal", 12),
    Sketcher.Constraint("Vertical", 13),
    Sketcher.Constraint("Horizontal", 14),
    Sketcher.Constraint("Vertical", 15),
    Sketcher.Constraint("Horizontal", 16),
    Sketcher.Constraint("Vertical", 17),
    Sketcher.Constraint("Vertical", 19),
    Sketcher.Constraint("Horizontal", 20),
    Sketcher.Constraint("Vertical", 21),
    Sketcher.Constraint("Horizontal", 22),
    Sketcher.Constraint("Vertical", 23),
    Sketcher.Constraint("Horizontal", 24),
    Sketcher.Constraint("Equal", 6, 18),
    Sketcher.Constraint("Symmetric", 0, 2, 23, 2, -1, 1),
    Sketcher.Constraint("Perpendicular", 2, 3),
    Sketcher.Constraint("Horizontal", 6, 3, 18, 3),
    Sketcher.Constraint("Horizontal", 5, 2, 6, 1),
    Sketcher.Constraint("Horizontal", 4, 2, 7, 2),
    Sketcher.Constraint("Horizontal", 10, 2, 13, 2),
    Sketcher.Constraint("Horizontal", 6, 1, 17, 2),
    Sketcher.Constraint("Horizontal", 17, 2, 18, 1),
    Sketcher.Constraint("Horizontal", 16, 2, 19, 2),
    Sketcher.Constraint("Horizontal", 1, 2, 21, 2),
    Sketcher.Constraint("Radius", 4, Q("4 mm")),
    Sketcher.Constraint("Radius", 6, Q("2 mm")),
    Sketcher.Constraint("DistanceX", 10, 2, 10, 1, Q("42 mm")),
    Sketcher.Constraint("DistanceX", 12, 2, 12, 1, Q("13 mm")),
    Sketcher.Constraint("DistanceX", 14, 2, 14, 1, Q("43 mm")),
    Sketcher.Constraint("DistanceX", 22, 1, 22, 2, Q("32 mm")),
    Sketcher.Constraint("DistanceX", 24, 1, 24, 2, Q("72 mm")),
    Sketcher.Constraint("DistanceY", 0, 2, 0, 1, Q("10 mm")),
    Sketcher.Constraint("DistanceY", 5, 2, 5, 1, Q("1 mm")),
    Sketcher.Constraint("DistanceY", 11, 2, 11, 1, Q("6 mm")),
    Sketcher.Constraint("DistanceY", 15, 1, 15, 2, Q("7 mm")),
    Sketcher.Constraint("DistanceY", 21, 2, 21, 1, Q("35 mm")),
    Sketcher.Constraint("Distance", 3, Q("22 mm")),
    Sketcher.Constraint("DistanceX", -1, 1, 6, 3, Q("56 mm")),
    Sketcher.Constraint("DistanceX", -1, 1, 2, 2, Q("78 mm")),
    Sketcher.Constraint("DistanceX", -1, 1, 8, 2, Q("48 mm")),
    Sketcher.Constraint("DistanceX", 16, 2, 16, 1, Q("4.75 mm")),
    Sketcher.Constraint("DistanceX", 20, 2, 20, 1, Q("9.75 mm")),
    Sketcher.Constraint("DistanceY", 9, 2, 9, 1, Q("5.662002 mm")),
    Sketcher.Constraint("DistanceY", -1, 1, 6, 3, Q("27.75 mm")),
])
pad3 = body3.newObject("PartDesign::Pad", "Pad002")
pad3.Profile = sketch3
pad3.Length = 5
pad3.Reversed = True
doc.recompute()

fillet = body3.newObject("PartDesign::Fillet", "Fillet")
fillet.Base = (pad3, edges_at(pad3, [(78, -45.375, 14.358)]))
fillet.Radius = 5
doc.recompute()

fillet2 = body3.newObject("PartDesign::Fillet", "Fillet001")
fillet2.Base = (fillet, edges_at(fillet, [(51.654, -45.375, -5)]))
fillet2.Radius = 15
doc.recompute()

fillet3 = body3.newObject("PartDesign::Fillet", "Fillet002")
fillet3.Base = (fillet2, edges_at(fillet2, [(-68, -45.375, -5), (-68, -45.375, 30)]))
fillet3.Radius = 8
doc.recompute()

fillet4 = body3.newObject("PartDesign::Fillet", "Fillet003")
fillet4.Base = (fillet3, edges_at(fillet3, [(-50, -45.375, 30)]))
fillet4.Radius = 3
body4 = doc.addObject("PartDesign::Body", "Body003")

sketch4 = body4.newObject("Sketcher::SketchObject", "Sketch003")
sketch4.AttachmentSupport = (doc.getObject("XZ_Plane003"), [""])
sketch4.MapMode = "FlatFace"
sketch4.AttachmentOffset = App.Placement(App.Vector(0, 0, 42.875), App.Rotation())
sketch4.addGeometry([
    Part.LineSegment(App.Vector(63.1, 31.3, 0), App.Vector(75.8, 14, 0)),
    Part.ArcOfCircle(Part.Circle(App.Vector(71, 15.4, 0), App.Vector(0, 0, 1), 5), math.radians(-54), math.radians(-17)),
    Part.LineSegment(App.Vector(74, 11.4, 0), App.Vector(72.4, 10.2, 0)),
    Part.LineSegment(App.Vector(72.4, 10.2, 0), App.Vector(59, 28.3, 0)),
    Part.LineSegment(App.Vector(59, 28.3, 0), App.Vector(63.1, 31.3, 0)),
], False)
sketch4.addConstraint([
    Sketcher.Constraint("Coincident", 0, 2, 1, 2),
    Sketcher.Constraint("Tangent", 1, 1, 2, 1),
    Sketcher.Constraint("Coincident", 2, 2, 3, 1),
    Sketcher.Constraint("Coincident", 3, 2, 4, 1),
    Sketcher.Constraint("Coincident", 4, 2, 0, 1),
    Sketcher.Constraint("Perpendicular", 0, 2),
    Sketcher.Constraint("Perpendicular", 2, 3),
    Sketcher.Constraint("Perpendicular", 3, 4),
    Sketcher.Constraint("Radius", 1, Q("5 mm")),
    Sketcher.Constraint("Distance", 2, Q("2 mm")),
    Sketcher.Constraint("Distance", 4, Q("5 mm")),
    Sketcher.Constraint("Distance", 0, Q("21.5 mm")),
    Sketcher.Constraint("DistanceY", -1, 1, 1, 1, Q("11.397399 mm")),
    Sketcher.Constraint("DistanceX", 4, 2, 1, 1, Q("10.9051 mm")),
    Sketcher.Constraint("DistanceX", -1, 1, 0, 2, Q("75.796179 mm")),
])
pad4 = body4.newObject("PartDesign::Pad", "Pad003")
pad4.Profile = sketch4
pad4.Length = 85.875
pad4.Reversed = True
body5 = doc.addObject("PartDesign::Body", "Body004")

sketch5 = body5.newObject("Sketcher::SketchObject", "Sketch004")
sketch5.AttachmentSupport = (doc.getObject("XZ_Plane004"), [""])
sketch5.MapMode = "FlatFace"
sketch5.AttachmentOffset = App.Placement(App.Vector(0, 0, 42.875), App.Rotation())
sketch5.addGeometry([
    Part.ArcOfCircle(Part.Circle(App.Vector(56, 27.75, 0), App.Vector(0, 0, 1), 4), math.radians(59), math.radians(90)),
    Part.LineSegment(App.Vector(56, 31.75, 0), App.Vector(-56.5, 31.75, 0)),
    Part.ArcOfCircle(Part.Circle(App.Vector(-56.5, 27.75, 0), App.Vector(0, 0, 1), 4), math.radians(90), math.radians(146)),
    Part.ArcOfCircle(Part.Circle(App.Vector(-56.5, 27.75, 0), App.Vector(0, 0, 1), 4), math.radians(146), math.radians(270)),
    Part.LineSegment(App.Vector(-56.5, 23.75, 0), App.Vector(-50, 23.75, 0)),
    Part.LineSegment(App.Vector(-50, 23.75, 0), App.Vector(-50, 23.55, 0)),
    Part.LineSegment(App.Vector(-50, 23.55, 0), App.Vector(-56.5, 23.55, 0)),
    Part.ArcOfCircle(Part.Circle(App.Vector(-56.5, 27.75, 0), App.Vector(0, 0, 1), 4.2), math.radians(148), math.radians(270)),
    Part.ArcOfCircle(Part.Circle(App.Vector(-56.5, 27.75, 0), App.Vector(0, 0, 1), 4.2), math.radians(90), math.radians(148)),
    Part.LineSegment(App.Vector(-56.5, 31.95, 0), App.Vector(56, 31.95, 0)),
    Part.ArcOfCircle(Part.Circle(App.Vector(56, 27.75, 0), App.Vector(0, 0, 1), 4.2), math.radians(60), math.radians(90)),
    Part.ArcOfCircle(Part.Circle(App.Vector(56, 27.75, 0), App.Vector(0, 0, 1), 4.2), math.radians(-90), math.radians(60)),
    Part.LineSegment(App.Vector(56, 23.55, 0), App.Vector(48, 23.55, 0)),
    Part.LineSegment(App.Vector(48, 23.55, 0), App.Vector(48, 23.75, 0)),
    Part.LineSegment(App.Vector(48, 23.75, 0), App.Vector(56, 23.75, 0)),
    Part.ArcOfCircle(Part.Circle(App.Vector(56, 27.75, 0), App.Vector(0, 0, 1), 4), math.radians(-90), math.radians(59)),
], False)
sketch5.addConstraint([
    Sketcher.Constraint("Tangent", 0, 2, 1, 1),
    Sketcher.Constraint("Tangent", 1, 2, 2, 1),
    Sketcher.Constraint("Tangent", 2, 2, 3, 1),
    Sketcher.Constraint("Tangent", 3, 2, 4, 1),
    Sketcher.Constraint("Coincident", 4, 2, 5, 1),
    Sketcher.Constraint("Coincident", 5, 2, 6, 1),
    Sketcher.Constraint("Tangent", 6, 2, 7, 2),
    Sketcher.Constraint("Tangent", 7, 1, 8, 2),
    Sketcher.Constraint("Tangent", 8, 1, 9, 1),
    Sketcher.Constraint("Tangent", 9, 2, 10, 2),
    Sketcher.Constraint("Tangent", 10, 1, 11, 2),
    Sketcher.Constraint("Tangent", 11, 1, 12, 1),
    Sketcher.Constraint("Coincident", 12, 2, 13, 1),
    Sketcher.Constraint("Coincident", 13, 2, 14, 1),
    Sketcher.Constraint("Tangent", 14, 2, 15, 1),
    Sketcher.Constraint("Tangent", 15, 2, 0, 1),
    Sketcher.Constraint("Horizontal", 1),
    Sketcher.Constraint("Horizontal", 4),
    Sketcher.Constraint("Vertical", 5),
    Sketcher.Constraint("Horizontal", 6),
    Sketcher.Constraint("Horizontal", 9),
    Sketcher.Constraint("Horizontal", 12),
    Sketcher.Constraint("Vertical", 13),
    Sketcher.Constraint("Horizontal", 14),
    Sketcher.Constraint("Coincident", 7, 3, 2, 3),
    Sketcher.Constraint("Coincident", 10, 3, 0, 3),
    Sketcher.Constraint("Equal", 0, 2),
    Sketcher.Constraint("Equal", 2, 3),
    Sketcher.Constraint("Equal", 7, 8),
    Sketcher.Constraint("Equal", 10, 11),
    Sketcher.Constraint("Equal", 3, 15),
    Sketcher.Constraint("Radius", 0, Q("4 mm")),
    Sketcher.Constraint("Radius", 7, Q("4.2 mm")),
    Sketcher.Constraint("DistanceX", 12, 2, 12, 1, Q("8 mm")),
    Sketcher.Constraint("DistanceX", 1, 2, 1, 1, Q("112.5 mm")),
    Sketcher.Constraint("DistanceX", 4, 1, 4, 2, Q("6.5 mm")),
    Sketcher.Constraint("DistanceX", -1, 1, 0, 3, Q("56 mm")),
    Sketcher.Constraint("DistanceY", -1, 1, 2, 2, Q("30 mm")),
    Sketcher.Constraint("DistanceY", -1, 1, 0, 3, Q("27.75 mm")),
    Sketcher.Constraint("DistanceY", -1, 1, 10, 1, Q("31.380501 mm")),
    Sketcher.Constraint("DistanceX", -1, 1, 15, 2, Q("58.032609 mm")),
    Sketcher.Constraint("DistanceX", 7, 1, -1, 1, Q("60.046563 mm")),
])
pad5 = body5.newObject("PartDesign::Pad", "Pad004")
pad5.Profile = sketch5
pad5.Length = 85.875
pad5.Reversed = True
body6 = doc.addObject("PartDesign::Body", "Body005")

sketch6 = body6.newObject("Sketcher::SketchObject", "Sketch005")
sketch6.AttachmentSupport = (doc.getObject("XZ_Plane005"), [""])
sketch6.MapMode = "FlatFace"
sketch6.AttachmentOffset = App.Placement(App.Vector(0, 0, 62.875), App.Rotation())
sketch6.addGeometry(Part.Circle(App.Vector(56, 28, 0), App.Vector(0, 0, 1), 7), False)
sketch6.addConstraint([
    Sketcher.Constraint("Diameter", 0, Q("14.8 mm")),
    Sketcher.Constraint("DistanceX", -1, 1, 0, 3, Q("56 mm")),
    Sketcher.Constraint("DistanceY", -1, 1, 0, 3, Q("27.75 mm")),
])
pad6 = body6.newObject("PartDesign::Pad", "Pad005")
pad6.Profile = sketch6
pad6.Length = 5
pad6.Reversed = True
body7 = doc.addObject("PartDesign::Body", "Body006")

sketch7 = body7.newObject("Sketcher::SketchObject", "Sketch006")
sketch7.AttachmentSupport = (doc.getObject("XZ_Plane006"), [""])
sketch7.MapMode = "FlatFace"
sketch7.AttachmentOffset = App.Placement(App.Vector(0, 0, 62.875), App.Rotation())
sketch7.addGeometry(Part.Circle(App.Vector(56, 13, 0), App.Vector(0, 0, 1), 7), False)
sketch7.addConstraint([
    Sketcher.Constraint("Diameter", 0, Q("14.8 mm")),
    Sketcher.Constraint("DistanceX", -1, 1, 0, 3, Q("56 mm")),
    Sketcher.Constraint("DistanceY", -1, 1, 0, 3, Q("12.75 mm")),
])
pad7 = body7.newObject("PartDesign::Pad", "Pad006")
pad7.Profile = sketch7
pad7.Length = 5
pad7.Reversed = True

doc.recompute()
